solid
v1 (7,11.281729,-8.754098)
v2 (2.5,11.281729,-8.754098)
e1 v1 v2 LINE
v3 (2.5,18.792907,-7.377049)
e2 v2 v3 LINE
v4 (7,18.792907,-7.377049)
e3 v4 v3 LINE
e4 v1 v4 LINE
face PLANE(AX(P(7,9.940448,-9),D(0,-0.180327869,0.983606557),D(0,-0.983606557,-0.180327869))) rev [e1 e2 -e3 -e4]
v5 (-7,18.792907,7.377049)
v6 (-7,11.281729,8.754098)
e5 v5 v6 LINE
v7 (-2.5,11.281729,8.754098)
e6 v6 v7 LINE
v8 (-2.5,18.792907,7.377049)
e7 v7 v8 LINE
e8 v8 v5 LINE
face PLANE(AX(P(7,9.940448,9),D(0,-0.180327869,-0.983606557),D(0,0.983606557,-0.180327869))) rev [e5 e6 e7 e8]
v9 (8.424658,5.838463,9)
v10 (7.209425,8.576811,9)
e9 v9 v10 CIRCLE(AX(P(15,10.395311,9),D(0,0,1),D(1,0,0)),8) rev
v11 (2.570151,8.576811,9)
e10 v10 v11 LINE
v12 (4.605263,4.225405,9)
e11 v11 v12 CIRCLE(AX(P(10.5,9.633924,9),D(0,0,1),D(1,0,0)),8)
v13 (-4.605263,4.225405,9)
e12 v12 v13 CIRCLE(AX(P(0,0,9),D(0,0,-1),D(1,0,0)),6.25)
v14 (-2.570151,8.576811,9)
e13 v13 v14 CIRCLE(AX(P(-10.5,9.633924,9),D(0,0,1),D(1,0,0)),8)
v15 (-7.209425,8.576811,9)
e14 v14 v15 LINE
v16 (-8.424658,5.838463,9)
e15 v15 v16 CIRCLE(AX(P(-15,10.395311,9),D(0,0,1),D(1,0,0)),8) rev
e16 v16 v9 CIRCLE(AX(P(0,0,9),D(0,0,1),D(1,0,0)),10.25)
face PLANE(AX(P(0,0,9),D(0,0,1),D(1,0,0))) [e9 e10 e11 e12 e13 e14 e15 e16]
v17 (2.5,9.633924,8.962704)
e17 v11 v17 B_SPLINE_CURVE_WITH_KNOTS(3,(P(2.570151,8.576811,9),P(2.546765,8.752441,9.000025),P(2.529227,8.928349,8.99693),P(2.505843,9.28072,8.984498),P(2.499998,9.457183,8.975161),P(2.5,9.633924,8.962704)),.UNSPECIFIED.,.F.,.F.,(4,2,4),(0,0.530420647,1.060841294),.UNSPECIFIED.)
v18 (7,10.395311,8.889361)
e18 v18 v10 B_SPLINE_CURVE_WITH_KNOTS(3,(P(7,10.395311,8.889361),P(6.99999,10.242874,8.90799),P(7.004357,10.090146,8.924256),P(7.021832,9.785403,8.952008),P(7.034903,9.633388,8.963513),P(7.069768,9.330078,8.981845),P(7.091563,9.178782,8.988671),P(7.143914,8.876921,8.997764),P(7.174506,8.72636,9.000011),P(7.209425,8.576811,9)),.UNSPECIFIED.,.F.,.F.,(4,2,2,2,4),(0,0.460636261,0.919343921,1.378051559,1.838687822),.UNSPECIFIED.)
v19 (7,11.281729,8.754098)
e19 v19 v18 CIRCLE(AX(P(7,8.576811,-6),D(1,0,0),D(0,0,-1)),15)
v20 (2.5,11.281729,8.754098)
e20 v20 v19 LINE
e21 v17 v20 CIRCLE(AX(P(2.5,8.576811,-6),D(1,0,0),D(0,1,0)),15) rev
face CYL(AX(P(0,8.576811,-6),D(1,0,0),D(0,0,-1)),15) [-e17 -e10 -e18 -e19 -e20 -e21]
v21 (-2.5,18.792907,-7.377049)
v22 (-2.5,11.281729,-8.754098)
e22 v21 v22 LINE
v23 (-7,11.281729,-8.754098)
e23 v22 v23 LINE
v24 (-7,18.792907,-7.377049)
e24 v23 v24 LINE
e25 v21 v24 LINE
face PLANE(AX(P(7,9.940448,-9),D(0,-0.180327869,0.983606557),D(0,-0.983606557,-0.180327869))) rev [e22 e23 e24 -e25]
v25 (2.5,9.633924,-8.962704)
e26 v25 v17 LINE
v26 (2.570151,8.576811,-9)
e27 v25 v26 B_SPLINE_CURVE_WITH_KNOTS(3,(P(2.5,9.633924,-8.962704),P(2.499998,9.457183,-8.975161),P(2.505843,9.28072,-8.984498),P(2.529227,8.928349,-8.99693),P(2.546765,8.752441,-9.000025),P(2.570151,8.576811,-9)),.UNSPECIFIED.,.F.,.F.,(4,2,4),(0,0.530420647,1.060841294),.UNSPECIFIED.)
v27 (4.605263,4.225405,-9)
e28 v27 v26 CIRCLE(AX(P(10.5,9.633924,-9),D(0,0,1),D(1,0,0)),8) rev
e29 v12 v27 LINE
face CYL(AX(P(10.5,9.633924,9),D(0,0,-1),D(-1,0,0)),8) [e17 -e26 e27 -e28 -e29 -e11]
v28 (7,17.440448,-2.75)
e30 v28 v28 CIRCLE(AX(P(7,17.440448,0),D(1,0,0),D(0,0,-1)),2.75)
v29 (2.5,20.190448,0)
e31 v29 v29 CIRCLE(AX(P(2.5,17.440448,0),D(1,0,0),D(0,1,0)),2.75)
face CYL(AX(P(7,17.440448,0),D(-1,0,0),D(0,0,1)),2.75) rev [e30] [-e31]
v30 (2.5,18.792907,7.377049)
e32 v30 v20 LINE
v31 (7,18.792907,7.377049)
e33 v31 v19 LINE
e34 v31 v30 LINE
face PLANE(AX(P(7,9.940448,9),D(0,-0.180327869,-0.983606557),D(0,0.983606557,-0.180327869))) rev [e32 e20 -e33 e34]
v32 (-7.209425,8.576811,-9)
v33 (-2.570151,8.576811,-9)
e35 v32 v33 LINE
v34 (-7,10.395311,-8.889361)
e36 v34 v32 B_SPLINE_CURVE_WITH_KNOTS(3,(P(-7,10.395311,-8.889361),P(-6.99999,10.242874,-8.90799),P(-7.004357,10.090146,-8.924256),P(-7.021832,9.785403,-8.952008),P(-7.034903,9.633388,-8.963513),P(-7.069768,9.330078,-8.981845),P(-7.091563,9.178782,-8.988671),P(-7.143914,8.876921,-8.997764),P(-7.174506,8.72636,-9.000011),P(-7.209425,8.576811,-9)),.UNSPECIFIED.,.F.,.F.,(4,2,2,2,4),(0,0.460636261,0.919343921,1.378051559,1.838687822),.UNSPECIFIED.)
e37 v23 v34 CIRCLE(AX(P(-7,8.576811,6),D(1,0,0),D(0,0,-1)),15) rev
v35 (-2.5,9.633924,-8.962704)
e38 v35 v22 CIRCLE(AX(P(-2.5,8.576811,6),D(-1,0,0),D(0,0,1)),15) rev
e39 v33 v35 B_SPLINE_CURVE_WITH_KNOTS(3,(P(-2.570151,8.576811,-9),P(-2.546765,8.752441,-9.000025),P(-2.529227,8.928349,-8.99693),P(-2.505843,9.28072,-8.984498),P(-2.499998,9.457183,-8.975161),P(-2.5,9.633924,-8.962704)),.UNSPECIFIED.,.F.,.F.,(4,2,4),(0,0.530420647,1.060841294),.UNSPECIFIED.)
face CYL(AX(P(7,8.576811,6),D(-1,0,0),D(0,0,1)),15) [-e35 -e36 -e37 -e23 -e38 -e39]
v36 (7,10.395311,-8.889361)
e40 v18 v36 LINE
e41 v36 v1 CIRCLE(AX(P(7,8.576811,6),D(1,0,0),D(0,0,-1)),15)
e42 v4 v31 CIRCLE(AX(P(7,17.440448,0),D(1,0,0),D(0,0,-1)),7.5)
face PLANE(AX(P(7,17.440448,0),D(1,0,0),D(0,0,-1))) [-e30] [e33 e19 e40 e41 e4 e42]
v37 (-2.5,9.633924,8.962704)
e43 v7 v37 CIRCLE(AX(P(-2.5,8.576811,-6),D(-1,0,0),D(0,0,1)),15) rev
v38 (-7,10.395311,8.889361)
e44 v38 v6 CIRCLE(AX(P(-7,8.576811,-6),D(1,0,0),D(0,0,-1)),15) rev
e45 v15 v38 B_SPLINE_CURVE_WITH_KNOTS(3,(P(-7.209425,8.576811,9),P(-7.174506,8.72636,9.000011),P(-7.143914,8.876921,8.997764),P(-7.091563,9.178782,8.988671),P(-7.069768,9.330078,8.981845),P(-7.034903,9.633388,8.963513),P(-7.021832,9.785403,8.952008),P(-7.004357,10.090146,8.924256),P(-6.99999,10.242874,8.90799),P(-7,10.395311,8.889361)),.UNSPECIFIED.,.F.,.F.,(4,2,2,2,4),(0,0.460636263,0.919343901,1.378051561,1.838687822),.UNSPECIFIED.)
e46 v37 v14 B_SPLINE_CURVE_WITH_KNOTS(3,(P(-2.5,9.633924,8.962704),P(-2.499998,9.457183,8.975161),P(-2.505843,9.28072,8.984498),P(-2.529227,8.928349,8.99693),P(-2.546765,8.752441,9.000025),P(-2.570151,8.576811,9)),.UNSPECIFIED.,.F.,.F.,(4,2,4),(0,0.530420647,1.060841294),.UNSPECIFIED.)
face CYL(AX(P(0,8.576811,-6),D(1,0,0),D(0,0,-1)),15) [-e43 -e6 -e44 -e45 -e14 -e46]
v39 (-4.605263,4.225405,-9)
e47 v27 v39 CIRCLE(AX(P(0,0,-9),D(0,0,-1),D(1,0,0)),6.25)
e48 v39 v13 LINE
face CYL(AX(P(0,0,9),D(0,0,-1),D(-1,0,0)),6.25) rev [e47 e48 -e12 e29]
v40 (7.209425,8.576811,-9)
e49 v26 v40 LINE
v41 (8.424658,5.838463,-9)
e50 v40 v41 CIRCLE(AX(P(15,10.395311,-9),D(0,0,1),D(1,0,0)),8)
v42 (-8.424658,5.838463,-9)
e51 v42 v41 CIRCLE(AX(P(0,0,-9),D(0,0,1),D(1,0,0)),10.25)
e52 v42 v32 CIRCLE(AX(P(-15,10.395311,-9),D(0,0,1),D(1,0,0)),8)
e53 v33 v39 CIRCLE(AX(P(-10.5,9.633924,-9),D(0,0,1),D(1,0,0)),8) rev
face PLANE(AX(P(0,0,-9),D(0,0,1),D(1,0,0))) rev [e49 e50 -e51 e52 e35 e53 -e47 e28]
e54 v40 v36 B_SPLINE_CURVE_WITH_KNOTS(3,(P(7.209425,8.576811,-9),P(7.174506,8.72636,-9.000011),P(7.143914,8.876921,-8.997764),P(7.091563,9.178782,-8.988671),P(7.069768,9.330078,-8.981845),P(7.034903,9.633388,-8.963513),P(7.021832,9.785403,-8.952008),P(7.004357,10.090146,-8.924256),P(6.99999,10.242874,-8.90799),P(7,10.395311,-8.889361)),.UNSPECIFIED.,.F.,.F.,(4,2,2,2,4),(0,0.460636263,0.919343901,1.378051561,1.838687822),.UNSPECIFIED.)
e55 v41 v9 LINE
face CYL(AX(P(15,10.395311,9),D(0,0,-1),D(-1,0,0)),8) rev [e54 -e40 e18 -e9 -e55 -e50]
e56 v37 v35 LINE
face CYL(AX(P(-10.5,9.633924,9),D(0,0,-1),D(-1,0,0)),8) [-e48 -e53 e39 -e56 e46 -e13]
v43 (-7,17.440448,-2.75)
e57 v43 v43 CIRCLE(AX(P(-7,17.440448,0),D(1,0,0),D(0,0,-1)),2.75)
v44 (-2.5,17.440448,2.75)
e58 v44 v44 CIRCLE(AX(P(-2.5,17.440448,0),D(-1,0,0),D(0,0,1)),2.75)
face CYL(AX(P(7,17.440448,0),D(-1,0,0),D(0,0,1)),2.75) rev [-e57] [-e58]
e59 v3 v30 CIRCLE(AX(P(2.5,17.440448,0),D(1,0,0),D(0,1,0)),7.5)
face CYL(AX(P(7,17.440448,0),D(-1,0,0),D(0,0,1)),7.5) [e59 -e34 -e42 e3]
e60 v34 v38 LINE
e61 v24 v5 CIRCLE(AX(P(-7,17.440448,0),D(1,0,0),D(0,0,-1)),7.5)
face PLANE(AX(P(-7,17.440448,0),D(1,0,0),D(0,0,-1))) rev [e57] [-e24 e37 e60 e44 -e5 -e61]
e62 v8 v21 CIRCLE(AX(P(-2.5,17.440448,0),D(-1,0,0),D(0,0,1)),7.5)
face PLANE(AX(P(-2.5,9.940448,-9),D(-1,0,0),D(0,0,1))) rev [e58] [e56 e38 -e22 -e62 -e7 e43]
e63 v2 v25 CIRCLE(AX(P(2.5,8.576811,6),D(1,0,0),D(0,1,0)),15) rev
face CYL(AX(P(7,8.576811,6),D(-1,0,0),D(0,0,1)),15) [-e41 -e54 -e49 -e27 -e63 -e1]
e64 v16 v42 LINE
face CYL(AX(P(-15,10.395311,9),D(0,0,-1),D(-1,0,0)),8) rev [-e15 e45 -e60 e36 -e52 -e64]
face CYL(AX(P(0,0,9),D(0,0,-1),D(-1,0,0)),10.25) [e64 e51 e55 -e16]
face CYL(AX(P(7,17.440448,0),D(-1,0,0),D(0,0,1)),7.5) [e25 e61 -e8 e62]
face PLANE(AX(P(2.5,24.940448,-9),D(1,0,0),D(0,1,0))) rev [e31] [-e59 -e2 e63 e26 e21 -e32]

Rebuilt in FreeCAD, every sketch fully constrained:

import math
import FreeCAD as App
import Part
import Sketcher
from FreeCAD import Vector
Q = App.Units.Quantity


def edges_at(feature, points):
    """Names of the edges that pass closest to the given points."""
    edges = feature.Shape.Edges
    near = lambda p: min(range(len(edges)), key=lambda i: edges[i].distToShape(Part.Vertex(*p))[0])
    return sorted({f"Edge{near(p) + 1}" for p in points})

doc = App.newDocument("Part")
body = doc.addObject("PartDesign::Body", "Body")

sketch1 = body.newObject("Sketcher::SketchObject", "Sketch")
sketch1.AttachmentSupport = (doc.getObject("XY_Plane"), [""])
sketch1.MapMode = "FlatFace"
sketch1.addGeometry([
    Part.LineSegment(Vector(-2.5, 5.7, 0), Vector(-2.5, 9.9, 0)),
    Part.ArcOfCircle(Part.Circle(Vector(0, 0, 0), Vector(0, 0, 1), 10.2), math.radians(104), math.radians(436)),
    Part.LineSegment(Vector(2.5, 9.9, 0), Vector(2.5, 5.7, 0)),
    Part.ArcOfCircle(Part.Circle(Vector(0, 0, 0), Vector(0, 0, 1), 6.2), math.radians(114), math.radians(426)),
], False)
sketch1.addConstraint([
    Sketcher.Constraint("Coincident", 0, 2, 1, 1),
    Sketcher.Constraint("Coincident", 1, 2, 2, 1),
    Sketcher.Constraint("Coincident", 2, 2, 3, 2),
    Sketcher.Constraint("Coincident", 3, 1, 0, 1),
    Sketcher.Constraint("Vertical", 0),
    Sketcher.Constraint("Vertical", 2),
    Sketcher.Constraint("Coincident", 1, 3, -1, 1),
    Sketcher.Constraint("Coincident", 3, 3, -1, 1),
    Sketcher.Constraint("Horizontal", 0, 2, 1, 2),
    Sketcher.Constraint("Radius", 1, Q("10.25 mm")),
    Sketcher.Constraint("Radius", 3, Q("6.25 mm")),
    Sketcher.Constraint("DistanceX", 0, 2, 1, 2, Q("5 mm")),
])
pad1 = body.newObject("PartDesign::Pad", "Pad")
pad1.Profile = sketch1
pad1.Length = 18
pad1.Midplane = True

sketch2 = body.newObject("Sketcher::SketchObject", "Sketch001")
sketch2.AttachmentSupport = (doc.getObject("YZ_Plane"), [""])
sketch2.MapMode = "FlatFace"
sketch2.addGeometry([
    Part.LineSegment(Vector(18.8, 7.4, 0), Vector(9.9, 9, 0)),
    Part.LineSegment(Vector(9.9, 9, 0), Vector(-0.2, 9, 0)),
    Part.LineSegment(Vector(-0.2, 9, 0), Vector(-0.2, -9, 0)),
    Part.LineSegment(Vector(-0.2, -9, 0), Vector(9.9, -9, 0)),
    Part.LineSegment(Vector(9.9, -9, 0), Vector(18.8, -7.4, 0)),
    Part.ArcOfCircle(Part.Circle(Vector(17.4, 0, 0), Vector(0, 0, 1), 7.5), math.radians(-80), math.radians(80)),
    Part.Circle(Vector(17.4, 0, 0), Vector(0, 0, 1), 2.8),
], False)
sketch2.addConstraint([
    Sketcher.Constraint("Coincident", 0, 2, 1, 1),
    Sketcher.Constraint("Coincident", 1, 2, 2, 1),
    Sketcher.Constraint("Coincident", 2, 2, 3, 1),
    Sketcher.Constraint("Coincident", 3, 2, 4, 1),
    Sketcher.Constraint("Tangent", 4, 2, 5, 1),
    Sketcher.Constraint("Tangent", 5, 2, 0, 1),
    Sketcher.Constraint("Horizontal", 1),
    Sketcher.Constraint("Vertical", 2),
    Sketcher.Constraint("Horizontal", 3),
    Sketcher.Constraint("Coincident", 6, 3, 5, 3),
    Sketcher.Constraint("Symmetric", 0, 2, 3, 2, -1),
    Sketcher.Constraint("PointOnObject", 5, 3, -1),
    Sketcher.Constraint("Diameter", 6, Q("5.5 mm")),
    Sketcher.Constraint("Radius", 5, Q("7.5 mm")),
    Sketcher.Constraint("DistanceY", 2, 2, 2, 1, Q("18 mm")),
    Sketcher.Constraint("Distance", 0, Q("9 mm")),
    Sketcher.Constraint("DistanceX", 1, 2, 1, 1, Q("10.095224 mm")),
    Sketcher.Constraint("DistanceX", -1, 1, 5, 3, Q("17.440448 mm")),
])
pad2 = body.newObject("PartDesign::Pad", "Pad001")
pad2.Profile = sketch2
pad2.Length = 14
pad2.Midplane = True

sketch3 = body.newObject("Sketcher::SketchObject", "Sketch002")
sketch3.AttachmentSupport = (doc.getObject("XY_Plane"), [""])
sketch3.MapMode = "FlatFace"
sketch3.AttachmentOffset = App.Placement(Vector(0, 0, 9), App.Rotation())
sketch3.addGeometry([
    Part.LineSegment(Vector(2, 25, 0), Vector(-2, 25, 0)),
    Part.LineSegment(Vector(-2, 25, 0), Vector(-2, 6, 0)),
    Part.ArcOfCircle(Part.Circle(Vector(0, 0, 0), Vector(0, 0, 1), 6), math.radians(114), math.radians(426)),
    Part.LineSegment(Vector(2, 6, 0), Vector(2, 25, 0)),
], False)
sketch3.addConstraint([
    Sketcher.Constraint("Coincident", 0, 2, 1, 1),
    Sketcher.Constraint("Coincident", 1, 2, 2, 1),
    Sketcher.Constraint("Coincident", 2, 2, 3, 1),
    Sketcher.Constraint("Coincident", 3, 2, 0, 1),
    Sketcher.Constraint("Horizontal", 0),
    Sketcher.Constraint("Vertical", 1),
    Sketcher.Constraint("Vertical", 3),
    Sketcher.Constraint("Coincident", 2, 3, -1, 1),
    Sketcher.Constraint("Horizontal", 1, 2, 2, 2),
    Sketcher.Constraint("DistanceX", 0, 2, 0, 1, Q("5 mm")),
    Sketcher.Constraint("Radius", 2, Q("6.25 mm")),
    Sketcher.Constraint("DistanceY", 1, 2, 1, 1, Q("19.212228 mm")),
])
pocket1 = body.newObject("PartDesign::Pocket", "Pocket")
pocket1.Profile = sketch3
pocket1.Type = "ThroughAll"
pocket1.Midplane = True
doc.recompute()

fillet = body.newObject("PartDesign::Fillet", "Fillet")
fillet.Base = (pocket1, edges_at(pocket1, [
    (-7, 7.487, 0),
    (7, 7.487, 0),
    (-2.5, 5.728, 0),
    (2.5, 5.728, 0),
]))
fillet.Radius = 8
doc.recompute()

fillet2 = body.newObject("PartDesign::Fillet", "Fillet001")
fillet2.Base = (fillet, edges_at(fillet, [
    (-4.756, 9.94, 9),
    (4.756, 9.94, 9),
    (4.756, 9.94, -9),
    (-4.756, 9.94, -9),
]))
fillet2.Radius = 15

doc.recompute()
